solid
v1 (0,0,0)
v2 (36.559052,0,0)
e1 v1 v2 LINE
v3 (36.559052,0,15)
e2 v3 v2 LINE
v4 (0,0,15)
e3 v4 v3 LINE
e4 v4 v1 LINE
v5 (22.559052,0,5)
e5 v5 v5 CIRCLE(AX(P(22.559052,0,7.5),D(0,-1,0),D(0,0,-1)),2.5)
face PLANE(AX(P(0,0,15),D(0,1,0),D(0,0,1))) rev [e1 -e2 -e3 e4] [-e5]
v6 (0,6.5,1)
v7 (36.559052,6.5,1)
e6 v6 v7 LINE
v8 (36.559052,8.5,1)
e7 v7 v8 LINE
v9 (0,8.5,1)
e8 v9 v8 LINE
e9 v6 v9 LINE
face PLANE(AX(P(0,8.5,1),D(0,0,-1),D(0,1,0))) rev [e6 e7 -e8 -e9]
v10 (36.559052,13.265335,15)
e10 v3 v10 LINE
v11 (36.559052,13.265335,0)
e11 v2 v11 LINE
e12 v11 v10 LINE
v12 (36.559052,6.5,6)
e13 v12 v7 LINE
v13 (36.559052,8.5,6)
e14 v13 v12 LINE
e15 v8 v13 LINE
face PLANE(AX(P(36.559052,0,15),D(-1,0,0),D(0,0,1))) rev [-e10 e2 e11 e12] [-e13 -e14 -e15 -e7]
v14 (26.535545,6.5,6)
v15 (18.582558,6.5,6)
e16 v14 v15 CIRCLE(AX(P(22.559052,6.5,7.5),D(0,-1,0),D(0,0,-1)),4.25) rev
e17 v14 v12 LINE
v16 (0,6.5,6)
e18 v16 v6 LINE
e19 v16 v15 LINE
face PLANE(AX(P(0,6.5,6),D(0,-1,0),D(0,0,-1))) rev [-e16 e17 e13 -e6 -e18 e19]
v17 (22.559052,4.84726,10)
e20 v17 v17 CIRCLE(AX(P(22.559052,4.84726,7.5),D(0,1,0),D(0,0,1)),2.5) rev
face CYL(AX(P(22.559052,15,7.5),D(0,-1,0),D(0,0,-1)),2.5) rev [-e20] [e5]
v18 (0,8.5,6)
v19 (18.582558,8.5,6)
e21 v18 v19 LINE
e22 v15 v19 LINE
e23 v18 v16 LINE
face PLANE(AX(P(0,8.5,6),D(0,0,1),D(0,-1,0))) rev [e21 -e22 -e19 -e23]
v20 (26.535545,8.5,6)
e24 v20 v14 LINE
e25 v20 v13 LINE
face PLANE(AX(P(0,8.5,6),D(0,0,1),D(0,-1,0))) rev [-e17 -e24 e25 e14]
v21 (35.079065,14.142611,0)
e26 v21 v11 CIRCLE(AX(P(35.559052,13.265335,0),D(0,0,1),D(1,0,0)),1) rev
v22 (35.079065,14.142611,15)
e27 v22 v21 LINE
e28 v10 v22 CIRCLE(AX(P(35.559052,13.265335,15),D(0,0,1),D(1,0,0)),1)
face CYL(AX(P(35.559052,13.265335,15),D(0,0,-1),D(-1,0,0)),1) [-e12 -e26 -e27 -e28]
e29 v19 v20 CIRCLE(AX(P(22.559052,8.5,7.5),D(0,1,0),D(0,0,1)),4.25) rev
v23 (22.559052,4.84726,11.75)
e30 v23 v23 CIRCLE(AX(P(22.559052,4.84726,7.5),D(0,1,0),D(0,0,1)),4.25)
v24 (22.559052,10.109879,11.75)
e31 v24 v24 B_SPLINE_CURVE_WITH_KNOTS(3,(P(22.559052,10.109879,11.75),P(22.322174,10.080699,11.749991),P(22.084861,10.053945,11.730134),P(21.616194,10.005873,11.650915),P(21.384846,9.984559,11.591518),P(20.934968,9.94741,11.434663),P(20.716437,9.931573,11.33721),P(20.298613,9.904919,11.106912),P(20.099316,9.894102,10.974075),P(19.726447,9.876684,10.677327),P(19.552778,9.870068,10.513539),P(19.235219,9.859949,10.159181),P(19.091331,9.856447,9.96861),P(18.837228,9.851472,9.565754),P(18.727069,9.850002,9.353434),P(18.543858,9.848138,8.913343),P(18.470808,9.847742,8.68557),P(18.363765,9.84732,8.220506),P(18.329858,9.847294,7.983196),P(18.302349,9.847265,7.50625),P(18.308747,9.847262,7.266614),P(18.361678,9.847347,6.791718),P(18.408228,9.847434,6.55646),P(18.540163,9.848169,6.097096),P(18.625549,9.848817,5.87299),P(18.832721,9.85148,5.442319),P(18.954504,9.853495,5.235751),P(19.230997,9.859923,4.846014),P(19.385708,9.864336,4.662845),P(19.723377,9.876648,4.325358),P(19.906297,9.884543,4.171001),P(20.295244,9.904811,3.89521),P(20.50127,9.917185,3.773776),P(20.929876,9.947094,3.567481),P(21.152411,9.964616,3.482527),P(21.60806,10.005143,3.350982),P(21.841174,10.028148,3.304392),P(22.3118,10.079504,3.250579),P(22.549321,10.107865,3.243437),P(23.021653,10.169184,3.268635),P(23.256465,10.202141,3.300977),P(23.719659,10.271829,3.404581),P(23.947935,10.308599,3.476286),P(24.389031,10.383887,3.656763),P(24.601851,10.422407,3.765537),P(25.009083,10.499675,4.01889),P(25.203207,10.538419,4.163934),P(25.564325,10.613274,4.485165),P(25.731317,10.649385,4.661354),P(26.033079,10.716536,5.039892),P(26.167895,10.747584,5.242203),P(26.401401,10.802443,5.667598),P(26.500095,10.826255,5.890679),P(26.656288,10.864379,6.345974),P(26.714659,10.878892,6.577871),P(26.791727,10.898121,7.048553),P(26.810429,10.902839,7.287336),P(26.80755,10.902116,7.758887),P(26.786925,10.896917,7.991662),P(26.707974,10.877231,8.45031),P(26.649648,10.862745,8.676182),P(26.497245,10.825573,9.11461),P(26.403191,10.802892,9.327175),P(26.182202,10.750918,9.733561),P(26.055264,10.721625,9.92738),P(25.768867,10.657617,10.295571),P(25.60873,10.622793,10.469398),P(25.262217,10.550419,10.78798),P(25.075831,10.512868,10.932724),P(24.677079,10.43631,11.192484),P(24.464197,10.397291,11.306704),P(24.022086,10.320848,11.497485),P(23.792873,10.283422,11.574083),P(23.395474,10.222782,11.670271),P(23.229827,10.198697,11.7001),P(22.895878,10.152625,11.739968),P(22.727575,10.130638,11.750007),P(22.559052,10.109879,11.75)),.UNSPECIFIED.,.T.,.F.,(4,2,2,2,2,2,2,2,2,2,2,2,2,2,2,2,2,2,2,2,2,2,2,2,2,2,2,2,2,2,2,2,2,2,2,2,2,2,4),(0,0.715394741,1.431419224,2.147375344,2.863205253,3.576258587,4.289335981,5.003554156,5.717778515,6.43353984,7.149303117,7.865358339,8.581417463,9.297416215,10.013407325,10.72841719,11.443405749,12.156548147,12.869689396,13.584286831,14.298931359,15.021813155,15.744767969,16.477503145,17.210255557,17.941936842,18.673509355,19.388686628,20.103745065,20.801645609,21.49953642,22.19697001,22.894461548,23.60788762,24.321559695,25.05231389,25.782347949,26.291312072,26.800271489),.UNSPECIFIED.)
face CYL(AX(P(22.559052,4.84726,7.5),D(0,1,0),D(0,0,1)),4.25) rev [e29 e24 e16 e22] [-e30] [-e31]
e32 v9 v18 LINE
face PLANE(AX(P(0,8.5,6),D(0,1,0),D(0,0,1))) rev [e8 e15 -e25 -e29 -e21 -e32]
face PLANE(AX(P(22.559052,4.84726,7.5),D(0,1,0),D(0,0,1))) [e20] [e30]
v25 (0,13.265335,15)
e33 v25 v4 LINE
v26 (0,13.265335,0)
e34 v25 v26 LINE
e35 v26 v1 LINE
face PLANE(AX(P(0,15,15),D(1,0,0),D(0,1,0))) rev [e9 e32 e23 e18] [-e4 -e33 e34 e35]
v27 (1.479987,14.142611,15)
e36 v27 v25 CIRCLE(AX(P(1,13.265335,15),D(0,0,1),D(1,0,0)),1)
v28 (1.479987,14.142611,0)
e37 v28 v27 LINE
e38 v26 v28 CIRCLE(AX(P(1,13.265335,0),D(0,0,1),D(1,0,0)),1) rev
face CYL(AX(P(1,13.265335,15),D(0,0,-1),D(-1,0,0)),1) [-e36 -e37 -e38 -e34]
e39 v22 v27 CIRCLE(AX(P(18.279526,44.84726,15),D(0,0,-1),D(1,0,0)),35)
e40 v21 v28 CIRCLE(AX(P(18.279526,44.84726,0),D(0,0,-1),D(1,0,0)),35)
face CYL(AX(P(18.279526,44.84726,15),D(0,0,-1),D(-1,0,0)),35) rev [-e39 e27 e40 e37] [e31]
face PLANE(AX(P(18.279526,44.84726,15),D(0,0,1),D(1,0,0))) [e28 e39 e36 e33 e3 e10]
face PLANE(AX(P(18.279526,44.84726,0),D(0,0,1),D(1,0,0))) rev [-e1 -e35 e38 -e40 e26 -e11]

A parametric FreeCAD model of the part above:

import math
import FreeCAD as App
import Part
import Sketcher
from FreeCAD import Vector
Q = App.Units.Quantity


def edges_at(feature, points):
    """Names of the edges that pass closest to the given points."""
    edges = feature.Shape.Edges
    near = lambda p: min(range(len(edges)), key=lambda i: edges[i].distToShape(Part.Vertex(*p))[0])
    return sorted({f"Edge{near(p) + 1}" for p in points})

doc = App.newDocument("Part")
params = doc.addObject("Spreadsheet::Sheet", "Params")
for row, (alias, value) in enumerate([
    ("sketch1_radius", "35 mm"),
    ("sketch1_height", "15 mm"),
    ("pad1_length", "15 mm"),
    ("sketch2_diameter", "5 mm"),
    ("pocket1_length", "15 mm"),
    ("sketch3_diameter", "8.5 mm"),
    ("pocket2_length", "10 mm"),
    ("sketch4_width", "2 mm"),
    ("sketch4_height", "5 mm"),
    ("fillet_radius", "1 mm"),
], start=1):
    params.set(f"A{row}", alias)
    params.set(f"B{row}", "=" + value)
    params.setAlias(f"B{row}", alias)

body = doc.addObject("PartDesign::Body", "Body")

sketch1 = body.newObject("Sketcher::SketchObject", "Sketch")
sketch1.AttachmentSupport = (doc.getObject("XY_Plane"), [""])
sketch1.MapMode = "FlatFace"
sketch1.addGeometry(Part.LineSegment(Vector(0, 15, 0), Vector(0, 0, 0)), False)
sketch1.addGeometry(Part.LineSegment(Vector(0, 0, 0), Vector(37, 0, 0)), False)
sketch1.addGeometry(Part.LineSegment(Vector(37, 0, 0), Vector(37, 15, 0)), False)
sketch1.addGeometry(Part.ArcOfCircle(Part.Circle(Vector(18, 45, 0), Vector(0, 0, 1), 35), math.radians(-121), math.radians(-59)), False)
sketch1.addConstraint(Sketcher.Constraint("Coincident", 0, 2, 1, 1))
sketch1.addConstraint(Sketcher.Constraint("Coincident", 1, 2, 2, 1))
sketch1.addConstraint(Sketcher.Constraint("Coincident", 2, 2, 3, 2))
sketch1.addConstraint(Sketcher.Constraint("Coincident", 3, 1, 0, 1))
sketch1.addConstraint(Sketcher.Constraint("Vertical", 0))
sketch1.addConstraint(Sketcher.Constraint("Horizontal", 1))
sketch1.addConstraint(Sketcher.Constraint("Vertical", 2))
sketch1.addConstraint(Sketcher.Constraint("Coincident", 0, 2, -1, 1))
sketch1.addConstraint(Sketcher.Constraint("Horizontal", 2, 2, 3, 1))
sketch1.addConstraint(Sketcher.Constraint("Radius", 3, Q("35 mm")))
sketch1.addConstraint(Sketcher.Constraint("DistanceY", 0, 2, 0, 1, Q("15 mm")))
sketch1.addConstraint(Sketcher.Constraint("DistanceX", 1, 1, 1, 2, Q("36.559052 mm")))
sketch1.setExpression("Constraints[9]", "Params.sketch1_radius")
sketch1.setExpression("Constraints[10]", "Params.sketch1_height")
pad1 = body.newObject("PartDesign::Pad", "Pad")
pad1.Profile = sketch1
pad1.setExpression("Length", "Params.pad1_length")

sketch2 = body.newObject("Sketcher::SketchObject", "Sketch001")
sketch2.AttachmentSupport = (doc.getObject("XZ_Plane"), [""])
sketch2.MapMode = "FlatFace"
sketch2.addGeometry(Part.Circle(Vector(22.6, 7.5, 0), Vector(0, 0, 1), 2.5), False)
sketch2.addConstraint(Sketcher.Constraint("Diameter", 0, Q("5 mm")))
sketch2.addConstraint(Sketcher.Constraint("DistanceY", -1, 1, 0, 3, Q("7.5 mm")))
sketch2.addConstraint(Sketcher.Constraint("DistanceX", -1, 1, 0, 3, Q("22.559052 mm")))
sketch2.setExpression("Constraints[0]", "Params.sketch2_diameter")
pocket1 = body.newObject("PartDesign::Pocket", "Pocket")
pocket1.Profile = sketch2
pocket1.setExpression("Length", "Params.pocket1_length")

sketch3 = body.newObject("Sketcher::SketchObject", "Sketch002")
sketch3.AttachmentSupport = (doc.getObject("XZ_Plane"), [""])
sketch3.MapMode = "FlatFace"
sketch3.AttachmentOffset = App.Placement(Vector(0, 0, -9.84726), App.Rotation())
sketch3.addGeometry(Part.Circle(Vector(22.6, 7.5, 0), Vector(0, 0, 1), 4.2), False)
sketch3.addConstraint(Sketcher.Constraint("Diameter", 0, Q("8.5 mm")))
sketch3.addConstraint(Sketcher.Constraint("DistanceY", -1, 1, 0, 3, Q("7.5 mm")))
sketch3.addConstraint(Sketcher.Constraint("DistanceX", -1, 1, 0, 3, Q("22.559052 mm")))
sketch3.setExpression("Constraints[0]", "Params.sketch3_diameter")
pocket2 = body.newObject("PartDesign::Pocket", "Pocket001")
pocket2.Profile = sketch3
pocket2.setExpression("Length", "Params.pocket2_length")
pocket2.Midplane = True

sketch4 = body.newObject("Sketcher::SketchObject", "Sketch003")
sketch4.AttachmentSupport = (doc.getObject("YZ_Plane"), [""])
sketch4.MapMode = "FlatFace"
sketch4.AttachmentOffset = App.Placement(Vector(0, 0, 36.559052), App.Rotation())
sketch4.addGeometry(Part.LineSegment(Vector(8.5, 6, 0), Vector(6.5, 6, 0)), False)
sketch4.addGeometry(Part.LineSegment(Vector(6.5, 6, 0), Vector(6.5, 1, 0)), False)
sketch4.addGeometry(Part.LineSegment(Vector(6.5, 1, 0), Vector(8.5, 1, 0)), False)
sketch4.addGeometry(Part.LineSegment(Vector(8.5, 1, 0), Vector(8.5, 6, 0)), False)
sketch4.addConstraint(Sketcher.Constraint("Coincident", 0, 2, 1, 1))
sketch4.addConstraint(Sketcher.Constraint("Coincident", 1, 2, 2, 1))
sketch4.addConstraint(Sketcher.Constraint("Coincident", 2, 2, 3, 1))
sketch4.addConstraint(Sketcher.Constraint("Coincident", 3, 2, 0, 1))
sketch4.addConstraint(Sketcher.Constraint("Horizontal", 0))
sketch4.addConstraint(Sketcher.Constraint("Vertical", 1))
sketch4.addConstraint(Sketcher.Constraint("Horizontal", 2))
sketch4.addConstraint(Sketcher.Constraint("Vertical", 3))
sketch4.addConstraint(Sketcher.Constraint("DistanceX", 0, 2, 0, 1, Q("2 mm")))
sketch4.addConstraint(Sketcher.Constraint("DistanceY", 1, 2, 1, 1, Q("5 mm")))
sketch4.addConstraint(Sketcher.Constraint("DistanceY", -1, 1, 0, 2, Q("6 mm")))
sketch4.addConstraint(Sketcher.Constraint("DistanceX", -1, 1, 0, 2, Q("6.5 mm")))
sketch4.setExpression("Constraints[8]", "Params.sketch4_width")
sketch4.setExpression("Constraints[9]", "Params.sketch4_height")
pocket3 = body.newObject("PartDesign::Pocket", "Pocket002")
pocket3.Profile = sketch4
pocket3.Type = "ThroughAll"
doc.recompute()

fillet = body.newObject("PartDesign::Fillet", "Fillet")
fillet.Base = (pocket3, edges_at(pocket3, [(0, 15, 7.5), (36.559, 15, 7.5)]))
fillet.setExpression("Radius", "Params.fillet_radius")

doc.recompute()
